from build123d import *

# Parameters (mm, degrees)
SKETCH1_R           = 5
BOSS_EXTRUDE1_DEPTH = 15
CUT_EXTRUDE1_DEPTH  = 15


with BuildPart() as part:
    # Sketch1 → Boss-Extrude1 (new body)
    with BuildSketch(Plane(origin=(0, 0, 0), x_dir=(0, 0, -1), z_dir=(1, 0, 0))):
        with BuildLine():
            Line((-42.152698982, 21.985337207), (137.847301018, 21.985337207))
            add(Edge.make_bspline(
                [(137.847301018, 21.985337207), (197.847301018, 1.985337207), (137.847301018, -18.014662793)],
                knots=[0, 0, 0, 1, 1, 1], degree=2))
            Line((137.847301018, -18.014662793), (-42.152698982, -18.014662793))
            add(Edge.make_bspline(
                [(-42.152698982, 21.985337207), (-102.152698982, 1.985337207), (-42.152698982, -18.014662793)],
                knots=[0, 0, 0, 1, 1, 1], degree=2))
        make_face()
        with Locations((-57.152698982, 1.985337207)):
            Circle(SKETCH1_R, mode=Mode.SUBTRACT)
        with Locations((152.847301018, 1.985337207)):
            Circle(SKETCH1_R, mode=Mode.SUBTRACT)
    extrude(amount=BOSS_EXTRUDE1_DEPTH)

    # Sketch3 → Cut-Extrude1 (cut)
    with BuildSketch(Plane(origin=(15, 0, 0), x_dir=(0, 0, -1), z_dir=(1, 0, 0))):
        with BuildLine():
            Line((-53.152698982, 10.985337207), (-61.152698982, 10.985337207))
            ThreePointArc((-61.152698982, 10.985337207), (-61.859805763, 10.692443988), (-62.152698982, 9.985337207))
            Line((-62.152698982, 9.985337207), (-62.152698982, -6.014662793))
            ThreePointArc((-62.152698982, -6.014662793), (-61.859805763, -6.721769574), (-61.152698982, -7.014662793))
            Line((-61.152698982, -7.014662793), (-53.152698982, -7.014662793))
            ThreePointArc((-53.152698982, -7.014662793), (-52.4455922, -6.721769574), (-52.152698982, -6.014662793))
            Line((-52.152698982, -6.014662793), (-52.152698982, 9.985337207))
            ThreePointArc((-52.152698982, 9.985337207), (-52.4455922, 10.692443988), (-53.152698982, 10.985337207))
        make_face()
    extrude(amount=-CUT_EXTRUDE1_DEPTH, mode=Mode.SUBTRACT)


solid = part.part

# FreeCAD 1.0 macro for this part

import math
import FreeCAD as App
import Part
import Sketcher

V = App.Vector

doc = App.newDocument("Part")
body = doc.addObject("PartDesign::Body", "Body")

# Sketch on YZ plane
sketch1 = body.newObject("Sketcher::SketchObject", "Sketch")
sketch1.AttachmentSupport = (doc.getObject("YZ_Plane"), [""])
sketch1.MapMode = "FlatFace"
sketch1.addGeometry([
    Part.LineSegment(V(21.985337, -137.847301, 0), V(21.985337, 42.152699, 0)),  # 0
    Part.BSplineCurve([V(21.985337, 42.152699, 0), V(1.985337, 102.152699, 0), V(-18.014663, 42.152699, 0)], [3, 3], [0, 1], False, 2, [1, 1, 1], False),  # 1
    Part.LineSegment(V(-18.014663, 42.152699, 0), V(-18.014663, -137.847301, 0)),  # 2
    Part.BSplineCurve([V(21.985337, -137.847301, 0), V(1.985337, -197.847301, 0), V(-18.014663, -137.847301, 0)], [3, 3], [0, 1], False, 2, [1, 1, 1], False),  # 3
    Part.Circle(V(1.985337, -152.847301, 0), V(0, 0, 1), 5),  # 4
    Part.Circle(V(1.985337, 57.152699, 0), V(0, 0, 1), 5),  # 5
], False)
sketch1.addConstraint([
    Sketcher.Constraint("Block", 1),
    Sketcher.Constraint("Block", 3),
    Sketcher.Constraint("Coincident", 0, 2, 1, 1),
    Sketcher.Constraint("Coincident", 1, 2, 2, 1),
    Sketcher.Constraint("Coincident", 2, 2, 3, 2),
    Sketcher.Constraint("Coincident", 3, 1, 0, 1),
    Sketcher.Constraint("Equal", 4, 5),
    Sketcher.Constraint("Vertical", 4, 3, 5, 3),
    Sketcher.Constraint("Diameter", 4, 10.0),
    Sketcher.Constraint("DistanceY", 4, 3, 5, 3, 210.0),
    Sketcher.Constraint("DistanceX", 5, 3, 0, 2, 20.0),
    Sketcher.Constraint("DistanceY", 0, 2, 5, 3, 15.0),
])
pad1 = body.newObject("PartDesign::Pad", "Pad")
pad1.Profile = sketch1
pad1.Length = 15

# Sketch on YZ plane
sketch2 = body.newObject("Sketcher::SketchObject", "Sketch001")
sketch2.AttachmentSupport = (doc.getObject("YZ_Plane"), [""])
sketch2.MapMode = "FlatFace"
sketch2.AttachmentOffset = App.Placement(V(0, 0, 15), App.Rotation())
sketch2.addGeometry([
    Part.LineSegment(V(11, 53.2, 0), V(11, 61.2, 0)),  # 0
    Part.ArcOfCircle(Part.Circle(V(10, 61.2, 0), V(0, 0, 1), 1), math.radians(0), math.radians(90)),  # 1
    Part.LineSegment(V(10, 62.2, 0), V(-6, 62.2, 0)),  # 2
    Part.ArcOfCircle(Part.Circle(V(-6, 61.2, 0), V(0, 0, 1), 1), math.radians(90), math.radians(180)),  # 3
    Part.LineSegment(V(-7, 61.2, 0), V(-7, 53.2, 0)),  # 4
    Part.ArcOfCircle(Part.Circle(V(-6, 53.2, 0), V(0, 0, 1), 1), math.radians(180), math.radians(270)),  # 5
    Part.LineSegment(V(-6, 52.2, 0), V(10, 52.2, 0)),  # 6
    Part.ArcOfCircle(Part.Circle(V(10, 53.2, 0), V(0, 0, 1), 1), math.radians(-90), math.radians(0)),  # 7
], False)
sketch2.addConstraint([
    Sketcher.Constraint("Tangent", 0, 2, 1, 1),
    Sketcher.Constraint("Tangent", 1, 2, 2, 1),
    Sketcher.Constraint("Tangent", 2, 2, 3, 1),
    Sketcher.Constraint("Tangent", 3, 2, 4, 1),
    Sketcher.Constraint("Tangent", 4, 2, 5, 1),
    Sketcher.Constraint("Tangent", 5, 2, 6, 1),
    Sketcher.Constraint("Tangent", 6, 2, 7, 1),
    Sketcher.Constraint("Tangent", 7, 2, 0, 1),
    Sketcher.Constraint("Vertical", 0),
    Sketcher.Constraint("Horizontal", 2),
    Sketcher.Constraint("Vertical", 4),
    Sketcher.Constraint("Horizontal", 6),
    Sketcher.Constraint("Equal", 1, 3),
    Sketcher.Constraint("Equal", 3, 5),
    Sketcher.Constraint("Equal", 5, 7),
    Sketcher.Constraint("Radius", 1, 1.0),
    Sketcher.Constraint("DistanceX", 2, 2, 2, 1, 16.0),
    Sketcher.Constraint("DistanceY", 0, 1, 0, 2, 8.0),
    Sketcher.Constraint("DistanceY", -1, 1, 1, 3, 61.152699),
    Sketcher.Constraint("DistanceX", -1, 1, 1, 3, 9.985337),
])
pocket1 = body.newObject("PartDesign::Pocket", "Pocket")
pocket1.Profile = sketch2
pocket1.Length = 15

doc.recompute()
